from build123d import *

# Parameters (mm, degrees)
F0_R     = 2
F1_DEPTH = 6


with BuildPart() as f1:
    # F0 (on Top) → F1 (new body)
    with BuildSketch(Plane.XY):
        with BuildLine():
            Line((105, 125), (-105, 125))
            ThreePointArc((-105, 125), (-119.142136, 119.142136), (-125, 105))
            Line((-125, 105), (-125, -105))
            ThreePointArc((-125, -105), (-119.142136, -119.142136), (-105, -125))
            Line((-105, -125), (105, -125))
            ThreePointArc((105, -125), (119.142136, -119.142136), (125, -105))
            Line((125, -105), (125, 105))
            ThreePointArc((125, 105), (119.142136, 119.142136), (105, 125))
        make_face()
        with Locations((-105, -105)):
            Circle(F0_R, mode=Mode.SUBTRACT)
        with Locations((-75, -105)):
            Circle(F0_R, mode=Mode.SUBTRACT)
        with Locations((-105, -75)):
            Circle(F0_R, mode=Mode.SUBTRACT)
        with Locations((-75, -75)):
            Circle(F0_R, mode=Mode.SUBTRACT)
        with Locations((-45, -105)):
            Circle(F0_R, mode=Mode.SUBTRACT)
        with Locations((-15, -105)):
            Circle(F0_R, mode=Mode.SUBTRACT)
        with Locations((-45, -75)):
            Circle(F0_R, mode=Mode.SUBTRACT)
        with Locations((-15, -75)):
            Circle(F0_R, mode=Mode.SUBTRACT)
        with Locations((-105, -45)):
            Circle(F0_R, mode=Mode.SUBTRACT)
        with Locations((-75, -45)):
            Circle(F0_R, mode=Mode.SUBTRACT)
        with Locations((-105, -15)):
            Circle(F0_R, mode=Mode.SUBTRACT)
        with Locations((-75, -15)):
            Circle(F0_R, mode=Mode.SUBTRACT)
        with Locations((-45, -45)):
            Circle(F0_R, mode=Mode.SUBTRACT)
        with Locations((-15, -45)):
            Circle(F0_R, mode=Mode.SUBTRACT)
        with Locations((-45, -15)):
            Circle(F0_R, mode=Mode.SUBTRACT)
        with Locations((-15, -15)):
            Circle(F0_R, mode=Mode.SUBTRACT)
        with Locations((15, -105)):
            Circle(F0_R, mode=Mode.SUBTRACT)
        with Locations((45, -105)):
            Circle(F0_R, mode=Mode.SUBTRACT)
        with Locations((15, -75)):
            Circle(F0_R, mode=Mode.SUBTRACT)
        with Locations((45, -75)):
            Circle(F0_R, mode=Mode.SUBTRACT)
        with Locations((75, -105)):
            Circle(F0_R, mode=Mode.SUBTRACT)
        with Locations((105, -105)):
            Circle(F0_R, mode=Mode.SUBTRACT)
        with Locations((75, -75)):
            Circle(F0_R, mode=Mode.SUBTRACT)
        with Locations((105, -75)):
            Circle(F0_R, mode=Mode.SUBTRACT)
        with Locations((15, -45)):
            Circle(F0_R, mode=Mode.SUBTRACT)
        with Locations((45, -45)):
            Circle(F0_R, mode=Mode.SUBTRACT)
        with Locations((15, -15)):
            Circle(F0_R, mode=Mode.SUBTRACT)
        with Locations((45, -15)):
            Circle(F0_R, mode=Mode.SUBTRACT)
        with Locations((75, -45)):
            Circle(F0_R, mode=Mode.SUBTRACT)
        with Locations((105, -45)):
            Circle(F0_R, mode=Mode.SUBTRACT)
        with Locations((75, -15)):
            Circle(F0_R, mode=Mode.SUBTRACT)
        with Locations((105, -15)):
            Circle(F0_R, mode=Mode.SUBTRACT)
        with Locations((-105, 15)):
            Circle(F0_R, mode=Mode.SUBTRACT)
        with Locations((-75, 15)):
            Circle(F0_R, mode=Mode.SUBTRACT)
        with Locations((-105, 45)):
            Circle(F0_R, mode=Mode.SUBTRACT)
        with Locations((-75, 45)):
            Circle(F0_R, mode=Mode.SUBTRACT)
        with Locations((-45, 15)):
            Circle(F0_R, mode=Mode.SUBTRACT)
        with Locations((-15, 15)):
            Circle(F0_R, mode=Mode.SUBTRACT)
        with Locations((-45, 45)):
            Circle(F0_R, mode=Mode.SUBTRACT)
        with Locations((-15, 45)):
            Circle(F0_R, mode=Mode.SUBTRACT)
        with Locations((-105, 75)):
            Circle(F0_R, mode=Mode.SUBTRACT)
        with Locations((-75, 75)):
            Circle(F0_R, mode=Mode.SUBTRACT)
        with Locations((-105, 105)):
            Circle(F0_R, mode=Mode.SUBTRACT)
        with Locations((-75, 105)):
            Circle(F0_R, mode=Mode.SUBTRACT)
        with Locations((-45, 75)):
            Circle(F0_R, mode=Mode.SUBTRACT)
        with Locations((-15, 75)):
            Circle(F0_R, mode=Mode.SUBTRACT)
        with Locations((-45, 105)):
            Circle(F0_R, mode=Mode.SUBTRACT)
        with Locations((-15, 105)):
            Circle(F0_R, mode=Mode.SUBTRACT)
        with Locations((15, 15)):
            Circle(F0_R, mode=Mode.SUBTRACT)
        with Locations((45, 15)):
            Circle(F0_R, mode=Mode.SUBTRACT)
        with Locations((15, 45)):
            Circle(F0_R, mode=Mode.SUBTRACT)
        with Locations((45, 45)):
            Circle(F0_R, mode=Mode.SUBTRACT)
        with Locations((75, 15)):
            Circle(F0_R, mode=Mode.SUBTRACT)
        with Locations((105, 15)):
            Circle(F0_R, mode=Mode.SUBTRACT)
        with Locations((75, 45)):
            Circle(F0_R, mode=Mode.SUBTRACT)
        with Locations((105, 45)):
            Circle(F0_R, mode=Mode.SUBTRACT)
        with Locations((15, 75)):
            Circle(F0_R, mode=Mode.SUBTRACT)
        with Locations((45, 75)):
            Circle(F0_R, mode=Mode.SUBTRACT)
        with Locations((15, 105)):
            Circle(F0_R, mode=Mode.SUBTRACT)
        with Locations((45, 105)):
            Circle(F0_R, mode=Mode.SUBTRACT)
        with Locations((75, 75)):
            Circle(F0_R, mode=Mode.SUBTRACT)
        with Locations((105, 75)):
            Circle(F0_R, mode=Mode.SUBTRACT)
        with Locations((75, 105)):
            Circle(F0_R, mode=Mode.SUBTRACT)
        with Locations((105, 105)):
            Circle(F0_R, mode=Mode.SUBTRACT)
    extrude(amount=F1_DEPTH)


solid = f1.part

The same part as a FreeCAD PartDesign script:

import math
import FreeCAD as App
import Part
import Sketcher
from FreeCAD import Vector
Q = App.Units.Quantity

doc = App.newDocument("Part")
body = doc.addObject("PartDesign::Body", "Body")

# Sketch on XY plane
sketch1 = body.newObject("Sketcher::SketchObject", "Sketch")
sketch1.AttachmentSupport = (doc.getObject("XY_Plane"), [""])
sketch1.MapMode = "FlatFace"
sketch1.addGeometry([
    Part.LineSegment(Vector(105, 125, 0), Vector(-105, 125, 0)),  # 0
    Part.ArcOfCircle(Part.Circle(Vector(-105, 105, 0), Vector(0, 0, 1), 20), math.radians(90), math.radians(180)),  # 1
    Part.LineSegment(Vector(-125, 105, 0), Vector(-125, -105, 0)),  # 2
    Part.ArcOfCircle(Part.Circle(Vector(-105, -105, 0), Vector(0, 0, 1), 20), math.radians(180), math.radians(270)),  # 3
    Part.LineSegment(Vector(-105, -125, 0), Vector(105, -125, 0)),  # 4
    Part.ArcOfCircle(Part.Circle(Vector(105, -105, 0), Vector(0, 0, 1), 20), math.radians(-90), math.radians(0)),  # 5
    Part.LineSegment(Vector(125, -105, 0), Vector(125, 105, 0)),  # 6
    Part.ArcOfCircle(Part.Circle(Vector(105, 105, 0), Vector(0, 0, 1), 20), math.radians(0), math.radians(90)),  # 7
    Part.Circle(Vector(-105, -105, 0), Vector(0, 0, 1), 2),  # 8
    Part.Circle(Vector(-75, -105, 0), Vector(0, 0, 1), 2),  # 9
    Part.Circle(Vector(-105, -75, 0), Vector(0, 0, 1), 2),  # 10
    Part.Circle(Vector(-75, -75, 0), Vector(0, 0, 1), 2),  # 11
    Part.Circle(Vector(-45, -105, 0), Vector(0, 0, 1), 2),  # 12
    Part.Circle(Vector(-15, -105, 0), Vector(0, 0, 1), 2),  # 13
    Part.Circle(Vector(-45, -75, 0), Vector(0, 0, 1), 2),  # 14
    Part.Circle(Vector(-15, -75, 0), Vector(0, 0, 1), 2),  # 15
    Part.Circle(Vector(-105, -45, 0), Vector(0, 0, 1), 2),  # 16
    Part.Circle(Vector(-75, -45, 0), Vector(0, 0, 1), 2),  # 17
    Part.Circle(Vector(-105, -15, 0), Vector(0, 0, 1), 2),  # 18
    Part.Circle(Vector(-75, -15, 0), Vector(0, 0, 1), 2),  # 19
    Part.Circle(Vector(-45, -45, 0), Vector(0, 0, 1), 2),  # 20
    Part.Circle(Vector(-15, -45, 0), Vector(0, 0, 1), 2),  # 21
    Part.Circle(Vector(-45, -15, 0), Vector(0, 0, 1), 2),  # 22
    Part.Circle(Vector(-15, -15, 0), Vector(0, 0, 1), 2),  # 23
    Part.Circle(Vector(15, -105, 0), Vector(0, 0, 1), 2),  # 24
    Part.Circle(Vector(45, -105, 0), Vector(0, 0, 1), 2),  # 25
    Part.Circle(Vector(15, -75, 0), Vector(0, 0, 1), 2),  # 26
    Part.Circle(Vector(45, -75, 0), Vector(0, 0, 1), 2),  # 27
    Part.Circle(Vector(75, -105, 0), Vector(0, 0, 1), 2),  # 28
    Part.Circle(Vector(105, -105, 0), Vector(0, 0, 1), 2),  # 29
    Part.Circle(Vector(75, -75, 0), Vector(0, 0, 1), 2),  # 30
    Part.Circle(Vector(105, -75, 0), Vector(0, 0, 1), 2),  # 31
    Part.Circle(Vector(15, -45, 0), Vector(0, 0, 1), 2),  # 32
    Part.Circle(Vector(45, -45, 0), Vector(0, 0, 1), 2),  # 33
    Part.Circle(Vector(15, -15, 0), Vector(0, 0, 1), 2),  # 34
    Part.Circle(Vector(45, -15, 0), Vector(0, 0, 1), 2),  # 35
    Part.Circle(Vector(75, -45, 0), Vector(0, 0, 1), 2),  # 36
    Part.Circle(Vector(105, -45, 0), Vector(0, 0, 1), 2),  # 37
    Part.Circle(Vector(75, -15, 0), Vector(0, 0, 1), 2),  # 38
    Part.Circle(Vector(105, -15, 0), Vector(0, 0, 1), 2),  # 39
    Part.Circle(Vector(-105, 15, 0), Vector(0, 0, 1), 2),  # 40
    Part.Circle(Vector(-75, 15, 0), Vector(0, 0, 1), 2),  # 41
    Part.Circle(Vector(-105, 45, 0), Vector(0, 0, 1), 2),  # 42
    Part.Circle(Vector(-75, 45, 0), Vector(0, 0, 1), 2),  # 43
    Part.Circle(Vector(-45, 15, 0), Vector(0, 0, 1), 2),  # 44
    Part.Circle(Vector(-15, 15, 0), Vector(0, 0, 1), 2),  # 45
    Part.Circle(Vector(-45, 45, 0), Vector(0, 0, 1), 2),  # 46
    Part.Circle(Vector(-15, 45, 0), Vector(0, 0, 1), 2),  # 47
    Part.Circle(Vector(-105, 75, 0), Vector(0, 0, 1), 2),  # 48
    Part.Circle(Vector(-75, 75, 0), Vector(0, 0, 1), 2),  # 49
    Part.Circle(Vector(-105, 105, 0), Vector(0, 0, 1), 2),  # 50
    Part.Circle(Vector(-75, 105, 0), Vector(0, 0, 1), 2),  # 51
    Part.Circle(Vector(-45, 75, 0), Vector(0, 0, 1), 2),  # 52
    Part.Circle(Vector(-15, 75, 0), Vector(0, 0, 1), 2),  # 53
    Part.Circle(Vector(-45, 105, 0), Vector(0, 0, 1), 2),  # 54
    Part.Circle(Vector(-15, 105, 0), Vector(0, 0, 1), 2),  # 55
    Part.Circle(Vector(15, 15, 0), Vector(0, 0, 1), 2),  # 56
    Part.Circle(Vector(45, 15, 0), Vector(0, 0, 1), 2),  # 57
    Part.Circle(Vector(15, 45, 0), Vector(0, 0, 1), 2),  # 58
    Part.Circle(Vector(45, 45, 0), Vector(0, 0, 1), 2),  # 59
    Part.Circle(Vector(75, 15, 0), Vector(0, 0, 1), 2),  # 60
    Part.Circle(Vector(105, 15, 0), Vector(0, 0, 1), 2),  # 61
    Part.Circle(Vector(75, 45, 0), Vector(0, 0, 1), 2),  # 62
    Part.Circle(Vector(105, 45, 0), Vector(0, 0, 1), 2),  # 63
    Part.Circle(Vector(15, 75, 0), Vector(0, 0, 1), 2),  # 64
    Part.Circle(Vector(45, 75, 0), Vector(0, 0, 1), 2),  # 65
    Part.Circle(Vector(15, 105, 0), Vector(0, 0, 1), 2),  # 66
    Part.Circle(Vector(45, 105, 0), Vector(0, 0, 1), 2),  # 67
    Part.Circle(Vector(75, 75, 0), Vector(0, 0, 1), 2),  # 68
    Part.Circle(Vector(105, 75, 0), Vector(0, 0, 1), 2),  # 69
    Part.Circle(Vector(75, 105, 0), Vector(0, 0, 1), 2),  # 70
    Part.Circle(Vector(105, 105, 0), Vector(0, 0, 1), 2),  # 71
], False)
sketch1.addConstraint([
    Sketcher.Constraint("Tangent", 0, 2, 1, 1),
    Sketcher.Constraint("Tangent", 1, 2, 2, 1),
    Sketcher.Constraint("Tangent", 2, 2, 3, 1),
    Sketcher.Constraint("Tangent", 3, 2, 4, 1),
    Sketcher.Constraint("Tangent", 4, 2, 5, 1),
    Sketcher.Constraint("Tangent", 5, 2, 6, 1),
    Sketcher.Constraint("Tangent", 6, 2, 7, 1),
    Sketcher.Constraint("Tangent", 7, 2, 0, 1),
    Sketcher.Constraint("Horizontal", 0),
    Sketcher.Constraint("Vertical", 2),
    Sketcher.Constraint("Horizontal", 4),
    Sketcher.Constraint("Vertical", 6),
    Sketcher.Constraint("Coincident", 8, 3, 3, 3),
    Sketcher.Constraint("Coincident", 29, 3, 5, 3),
    Sketcher.Constraint("Coincident", 50, 3, 1, 3),
    Sketcher.Constraint("Coincident", 71, 3, 7, 3),
    Sketcher.Constraint("Equal", 1, 3),
    Sketcher.Constraint("Equal", 3, 5),
    Sketcher.Constraint("Equal", 5, 7),
    Sketcher.Constraint("Equal", 8, 9),
    Sketcher.Constraint("Equal", 9, 10),
    Sketcher.Constraint("Equal", 10, 11),
    Sketcher.Constraint("Equal", 11, 12),
    Sketcher.Constraint("Equal", 12, 13),
    Sketcher.Constraint("Equal", 13, 14),
    Sketcher.Constraint("Equal", 14, 15),
    Sketcher.Constraint("Equal", 15, 16),
    Sketcher.Constraint("Equal", 16, 17),
    Sketcher.Constraint("Equal", 17, 18),
    Sketcher.Constraint("Equal", 18, 19),
    Sketcher.Constraint("Equal", 19, 20),
    Sketcher.Constraint("Equal", 20, 21),
    Sketcher.Constraint("Equal", 21, 22),
    Sketcher.Constraint("Equal", 22, 23),
    Sketcher.Constraint("Equal", 23, 24),
    Sketcher.Constraint("Equal", 24, 25),
    Sketcher.Constraint("Equal", 25, 26),
    Sketcher.Constraint("Equal", 26, 27),
    Sketcher.Constraint("Equal", 27, 28),
    Sketcher.Constraint("Equal", 28, 29),
    Sketcher.Constraint("Equal", 29, 30),
    Sketcher.Constraint("Equal", 30, 31),
    Sketcher.Constraint("Equal", 31, 32),
    Sketcher.Constraint("Equal", 32, 33),
    Sketcher.Constraint("Equal", 33, 34),
    Sketcher.Constraint("Equal", 34, 35),
    Sketcher.Constraint("Equal", 35, 36),
    Sketcher.Constraint("Equal", 36, 37),
    Sketcher.Constraint("Equal", 37, 38),
    Sketcher.Constraint("Equal", 38, 39),
    Sketcher.Constraint("Equal", 39, 40),
    Sketcher.Constraint("Equal", 40, 41),
    Sketcher.Constraint("Equal", 41, 42),
    Sketcher.Constraint("Equal", 42, 43),
    Sketcher.Constraint("Equal", 43, 44),
    Sketcher.Constraint("Equal", 44, 45),
    Sketcher.Constraint("Equal", 45, 46),
    Sketcher.Constraint("Equal", 46, 47),
    Sketcher.Constraint("Equal", 47, 48),
    Sketcher.Constraint("Equal", 48, 49),
    Sketcher.Constraint("Equal", 49, 50),
    Sketcher.Constraint("Equal", 50, 51),
    Sketcher.Constraint("Equal", 51, 52),
    Sketcher.Constraint("Equal", 52, 53),
    Sketcher.Constraint("Equal", 53, 54),
    Sketcher.Constraint("Equal", 54, 55),
    Sketcher.Constraint("Equal", 55, 56),
    Sketcher.Constraint("Equal", 56, 57),
    Sketcher.Constraint("Equal", 57, 58),
    Sketcher.Constraint("Equal", 58, 59),
    Sketcher.Constraint("Equal", 59, 60),
    Sketcher.Constraint("Equal", 60, 61),
    Sketcher.Constraint("Equal", 61, 62),
    Sketcher.Constraint("Equal", 62, 63),
    Sketcher.Constraint("Equal", 63, 64),
    Sketcher.Constraint("Equal", 64, 65),
    Sketcher.Constraint("Equal", 65, 66),
    Sketcher.Constraint("Equal", 66, 67),
    Sketcher.Constraint("Equal", 67, 68),
    Sketcher.Constraint("Equal", 68, 69),
    Sketcher.Constraint("Equal", 69, 70),
    Sketcher.Constraint("Equal", 70, 71),
    Sketcher.Constraint("Symmetric", 1, 3, 5, 3, -1, 1),
    Sketcher.Constraint("Symmetric", 39, 3, 40, 3, -1, 1),
    Sketcher.Constraint("Symmetric", 38, 3, 41, 3, -1, 1),
    Sketcher.Constraint("Symmetric", 37, 3, 42, 3, -1, 1),
    Sketcher.Constraint("Symmetric", 36, 3, 43, 3, -1, 1),
    Sketcher.Constraint("Symmetric", 35, 3, 44, 3, -1, 1),
    Sketcher.Constraint("Symmetric", 34, 3, 45, 3, -1, 1),
    Sketcher.Constraint("Symmetric", 33, 3, 46, 3, -1, 1),
    Sketcher.Constraint("Symmetric", 32, 3, 47, 3, -1, 1),
    Sketcher.Constraint("Symmetric", 31, 3, 48, 3, -1, 1),
    Sketcher.Constraint("Symmetric", 30, 3, 49, 3, -1, 1),
    Sketcher.Constraint("Symmetric", 28, 3, 51, 3, -1, 1),
    Sketcher.Constraint("Symmetric", 27, 3, 52, 3, -1, 1),
    Sketcher.Constraint("Symmetric", 26, 3, 53, 3, -1, 1),
    Sketcher.Constraint("Symmetric", 25, 3, 54, 3, -1, 1),
    Sketcher.Constraint("Symmetric", 24, 3, 55, 3, -1, 1),
    Sketcher.Constraint("Symmetric", 23, 3, 56, 3, -1, 1),
    Sketcher.Constraint("Symmetric", 22, 3, 57, 3, -1, 1),
    Sketcher.Constraint("Symmetric", 21, 3, 58, 3, -1, 1),
    Sketcher.Constraint("Symmetric", 20, 3, 59, 3, -1, 1),
    Sketcher.Constraint("Symmetric", 19, 3, 60, 3, -1, 1),
    Sketcher.Constraint("Symmetric", 18, 3, 61, 3, -1, 1),
    Sketcher.Constraint("Symmetric", 17, 3, 62, 3, -1, 1),
    Sketcher.Constraint("Symmetric", 16, 3, 63, 3, -1, 1),
    Sketcher.Constraint("Symmetric", 15, 3, 64, 3, -1, 1),
    Sketcher.Constraint("Symmetric", 14, 3, 65, 3, -1, 1),
    Sketcher.Constraint("Symmetric", 13, 3, 66, 3, -1, 1),
    Sketcher.Constraint("Symmetric", 12, 3, 67, 3, -1, 1),
    Sketcher.Constraint("Symmetric", 11, 3, 68, 3, -1, 1),
    Sketcher.Constraint("Symmetric", 10, 3, 69, 3, -1, 1),
    Sketcher.Constraint("Symmetric", 9, 3, 70, 3, -1, 1),
    Sketcher.Constraint("Symmetric", 13, 3, 24, 3, -2),
    Sketcher.Constraint("Symmetric", 12, 3, 25, 3, -2),
    Sketcher.Constraint("Symmetric", 15, 3, 26, 3, -2),
    Sketcher.Constraint("Symmetric", 14, 3, 27, 3, -2),
    Sketcher.Constraint("Symmetric", 9, 3, 28, 3, -2),
    Sketcher.Constraint("Symmetric", 11, 3, 30, 3, -2),
    Sketcher.Constraint("Symmetric", 10, 3, 31, 3, -2),
    Sketcher.Constraint("Symmetric", 21, 3, 32, 3, -2),
    Sketcher.Constraint("Symmetric", 20, 3, 33, 3, -2),
    Sketcher.Constraint("Symmetric", 23, 3, 34, 3, -2),
    Sketcher.Constraint("Symmetric", 22, 3, 35, 3, -2),
    Sketcher.Constraint("Symmetric", 17, 3, 36, 3, -2),
    Sketcher.Constraint("Symmetric", 16, 3, 37, 3, -2),
    Sketcher.Constraint("Symmetric", 19, 3, 38, 3, -2),
    Sketcher.Constraint("Symmetric", 18, 3, 39, 3, -2),
    Sketcher.Constraint("Horizontal", 8, 3, 9, 3),
    Sketcher.Constraint("Horizontal", 10, 3, 11, 3),
    Sketcher.Constraint("Horizontal", 9, 3, 12, 3),
    Sketcher.Constraint("Horizontal", 12, 3, 13, 3),
    Sketcher.Constraint("Horizontal", 11, 3, 14, 3),
    Sketcher.Constraint("Horizontal", 14, 3, 15, 3),
    Sketcher.Constraint("Horizontal", 16, 3, 17, 3),
    Sketcher.Constraint("Horizontal", 18, 3, 19, 3),
    Sketcher.Constraint("Horizontal", 17, 3, 20, 3),
    Sketcher.Constraint("Horizontal", 20, 3, 21, 3),
    Sketcher.Constraint("Horizontal", 19, 3, 22, 3),
    Sketcher.Constraint("Horizontal", 22, 3, 23, 3),
    Sketcher.Constraint("Vertical", 8, 3, 10, 3),
    Sketcher.Constraint("Vertical", 9, 3, 11, 3),
    Sketcher.Constraint("Vertical", 12, 3, 14, 3),
    Sketcher.Constraint("Vertical", 13, 3, 15, 3),
    Sketcher.Constraint("Vertical", 10, 3, 16, 3),
    Sketcher.Constraint("Vertical", 11, 3, 17, 3),
    Sketcher.Constraint("Vertical", 16, 3, 18, 3),
    Sketcher.Constraint("Vertical", 17, 3, 19, 3),
    Sketcher.Constraint("Vertical", 14, 3, 20, 3),
    Sketcher.Constraint("Vertical", 15, 3, 21, 3),
    Sketcher.Constraint("Vertical", 20, 3, 22, 3),
    Sketcher.Constraint("Vertical", 21, 3, 23, 3),
    Sketcher.Constraint("Equal", 4, 2),
    Sketcher.Constraint("Diameter", 8, Q("4 mm")),
    Sketcher.Constraint("Radius", 1, Q("19.999999 mm")),
    Sketcher.Constraint("DistanceX", 0, 2, 0, 1, Q("210 mm")),
    Sketcher.Constraint("DistanceX", 9, 3, -1, 1, Q("75 mm")),
    Sketcher.Constraint("DistanceY", 10, 3, -1, 1, Q("75 mm")),
    Sketcher.Constraint("DistanceX", 12, 3, -1, 1, Q("45 mm")),
    Sketcher.Constraint("DistanceX", 13, 3, -1, 1, Q("15 mm")),
    Sketcher.Constraint("DistanceY", 16, 3, -1, 1, Q("45 mm")),
    Sketcher.Constraint("DistanceY", 18, 3, -1, 1, Q("15 mm")),
])
pad1 = body.newObject("PartDesign::Pad", "Pad")
pad1.Profile = sketch1
pad1.Length = 6

doc.recompute()
